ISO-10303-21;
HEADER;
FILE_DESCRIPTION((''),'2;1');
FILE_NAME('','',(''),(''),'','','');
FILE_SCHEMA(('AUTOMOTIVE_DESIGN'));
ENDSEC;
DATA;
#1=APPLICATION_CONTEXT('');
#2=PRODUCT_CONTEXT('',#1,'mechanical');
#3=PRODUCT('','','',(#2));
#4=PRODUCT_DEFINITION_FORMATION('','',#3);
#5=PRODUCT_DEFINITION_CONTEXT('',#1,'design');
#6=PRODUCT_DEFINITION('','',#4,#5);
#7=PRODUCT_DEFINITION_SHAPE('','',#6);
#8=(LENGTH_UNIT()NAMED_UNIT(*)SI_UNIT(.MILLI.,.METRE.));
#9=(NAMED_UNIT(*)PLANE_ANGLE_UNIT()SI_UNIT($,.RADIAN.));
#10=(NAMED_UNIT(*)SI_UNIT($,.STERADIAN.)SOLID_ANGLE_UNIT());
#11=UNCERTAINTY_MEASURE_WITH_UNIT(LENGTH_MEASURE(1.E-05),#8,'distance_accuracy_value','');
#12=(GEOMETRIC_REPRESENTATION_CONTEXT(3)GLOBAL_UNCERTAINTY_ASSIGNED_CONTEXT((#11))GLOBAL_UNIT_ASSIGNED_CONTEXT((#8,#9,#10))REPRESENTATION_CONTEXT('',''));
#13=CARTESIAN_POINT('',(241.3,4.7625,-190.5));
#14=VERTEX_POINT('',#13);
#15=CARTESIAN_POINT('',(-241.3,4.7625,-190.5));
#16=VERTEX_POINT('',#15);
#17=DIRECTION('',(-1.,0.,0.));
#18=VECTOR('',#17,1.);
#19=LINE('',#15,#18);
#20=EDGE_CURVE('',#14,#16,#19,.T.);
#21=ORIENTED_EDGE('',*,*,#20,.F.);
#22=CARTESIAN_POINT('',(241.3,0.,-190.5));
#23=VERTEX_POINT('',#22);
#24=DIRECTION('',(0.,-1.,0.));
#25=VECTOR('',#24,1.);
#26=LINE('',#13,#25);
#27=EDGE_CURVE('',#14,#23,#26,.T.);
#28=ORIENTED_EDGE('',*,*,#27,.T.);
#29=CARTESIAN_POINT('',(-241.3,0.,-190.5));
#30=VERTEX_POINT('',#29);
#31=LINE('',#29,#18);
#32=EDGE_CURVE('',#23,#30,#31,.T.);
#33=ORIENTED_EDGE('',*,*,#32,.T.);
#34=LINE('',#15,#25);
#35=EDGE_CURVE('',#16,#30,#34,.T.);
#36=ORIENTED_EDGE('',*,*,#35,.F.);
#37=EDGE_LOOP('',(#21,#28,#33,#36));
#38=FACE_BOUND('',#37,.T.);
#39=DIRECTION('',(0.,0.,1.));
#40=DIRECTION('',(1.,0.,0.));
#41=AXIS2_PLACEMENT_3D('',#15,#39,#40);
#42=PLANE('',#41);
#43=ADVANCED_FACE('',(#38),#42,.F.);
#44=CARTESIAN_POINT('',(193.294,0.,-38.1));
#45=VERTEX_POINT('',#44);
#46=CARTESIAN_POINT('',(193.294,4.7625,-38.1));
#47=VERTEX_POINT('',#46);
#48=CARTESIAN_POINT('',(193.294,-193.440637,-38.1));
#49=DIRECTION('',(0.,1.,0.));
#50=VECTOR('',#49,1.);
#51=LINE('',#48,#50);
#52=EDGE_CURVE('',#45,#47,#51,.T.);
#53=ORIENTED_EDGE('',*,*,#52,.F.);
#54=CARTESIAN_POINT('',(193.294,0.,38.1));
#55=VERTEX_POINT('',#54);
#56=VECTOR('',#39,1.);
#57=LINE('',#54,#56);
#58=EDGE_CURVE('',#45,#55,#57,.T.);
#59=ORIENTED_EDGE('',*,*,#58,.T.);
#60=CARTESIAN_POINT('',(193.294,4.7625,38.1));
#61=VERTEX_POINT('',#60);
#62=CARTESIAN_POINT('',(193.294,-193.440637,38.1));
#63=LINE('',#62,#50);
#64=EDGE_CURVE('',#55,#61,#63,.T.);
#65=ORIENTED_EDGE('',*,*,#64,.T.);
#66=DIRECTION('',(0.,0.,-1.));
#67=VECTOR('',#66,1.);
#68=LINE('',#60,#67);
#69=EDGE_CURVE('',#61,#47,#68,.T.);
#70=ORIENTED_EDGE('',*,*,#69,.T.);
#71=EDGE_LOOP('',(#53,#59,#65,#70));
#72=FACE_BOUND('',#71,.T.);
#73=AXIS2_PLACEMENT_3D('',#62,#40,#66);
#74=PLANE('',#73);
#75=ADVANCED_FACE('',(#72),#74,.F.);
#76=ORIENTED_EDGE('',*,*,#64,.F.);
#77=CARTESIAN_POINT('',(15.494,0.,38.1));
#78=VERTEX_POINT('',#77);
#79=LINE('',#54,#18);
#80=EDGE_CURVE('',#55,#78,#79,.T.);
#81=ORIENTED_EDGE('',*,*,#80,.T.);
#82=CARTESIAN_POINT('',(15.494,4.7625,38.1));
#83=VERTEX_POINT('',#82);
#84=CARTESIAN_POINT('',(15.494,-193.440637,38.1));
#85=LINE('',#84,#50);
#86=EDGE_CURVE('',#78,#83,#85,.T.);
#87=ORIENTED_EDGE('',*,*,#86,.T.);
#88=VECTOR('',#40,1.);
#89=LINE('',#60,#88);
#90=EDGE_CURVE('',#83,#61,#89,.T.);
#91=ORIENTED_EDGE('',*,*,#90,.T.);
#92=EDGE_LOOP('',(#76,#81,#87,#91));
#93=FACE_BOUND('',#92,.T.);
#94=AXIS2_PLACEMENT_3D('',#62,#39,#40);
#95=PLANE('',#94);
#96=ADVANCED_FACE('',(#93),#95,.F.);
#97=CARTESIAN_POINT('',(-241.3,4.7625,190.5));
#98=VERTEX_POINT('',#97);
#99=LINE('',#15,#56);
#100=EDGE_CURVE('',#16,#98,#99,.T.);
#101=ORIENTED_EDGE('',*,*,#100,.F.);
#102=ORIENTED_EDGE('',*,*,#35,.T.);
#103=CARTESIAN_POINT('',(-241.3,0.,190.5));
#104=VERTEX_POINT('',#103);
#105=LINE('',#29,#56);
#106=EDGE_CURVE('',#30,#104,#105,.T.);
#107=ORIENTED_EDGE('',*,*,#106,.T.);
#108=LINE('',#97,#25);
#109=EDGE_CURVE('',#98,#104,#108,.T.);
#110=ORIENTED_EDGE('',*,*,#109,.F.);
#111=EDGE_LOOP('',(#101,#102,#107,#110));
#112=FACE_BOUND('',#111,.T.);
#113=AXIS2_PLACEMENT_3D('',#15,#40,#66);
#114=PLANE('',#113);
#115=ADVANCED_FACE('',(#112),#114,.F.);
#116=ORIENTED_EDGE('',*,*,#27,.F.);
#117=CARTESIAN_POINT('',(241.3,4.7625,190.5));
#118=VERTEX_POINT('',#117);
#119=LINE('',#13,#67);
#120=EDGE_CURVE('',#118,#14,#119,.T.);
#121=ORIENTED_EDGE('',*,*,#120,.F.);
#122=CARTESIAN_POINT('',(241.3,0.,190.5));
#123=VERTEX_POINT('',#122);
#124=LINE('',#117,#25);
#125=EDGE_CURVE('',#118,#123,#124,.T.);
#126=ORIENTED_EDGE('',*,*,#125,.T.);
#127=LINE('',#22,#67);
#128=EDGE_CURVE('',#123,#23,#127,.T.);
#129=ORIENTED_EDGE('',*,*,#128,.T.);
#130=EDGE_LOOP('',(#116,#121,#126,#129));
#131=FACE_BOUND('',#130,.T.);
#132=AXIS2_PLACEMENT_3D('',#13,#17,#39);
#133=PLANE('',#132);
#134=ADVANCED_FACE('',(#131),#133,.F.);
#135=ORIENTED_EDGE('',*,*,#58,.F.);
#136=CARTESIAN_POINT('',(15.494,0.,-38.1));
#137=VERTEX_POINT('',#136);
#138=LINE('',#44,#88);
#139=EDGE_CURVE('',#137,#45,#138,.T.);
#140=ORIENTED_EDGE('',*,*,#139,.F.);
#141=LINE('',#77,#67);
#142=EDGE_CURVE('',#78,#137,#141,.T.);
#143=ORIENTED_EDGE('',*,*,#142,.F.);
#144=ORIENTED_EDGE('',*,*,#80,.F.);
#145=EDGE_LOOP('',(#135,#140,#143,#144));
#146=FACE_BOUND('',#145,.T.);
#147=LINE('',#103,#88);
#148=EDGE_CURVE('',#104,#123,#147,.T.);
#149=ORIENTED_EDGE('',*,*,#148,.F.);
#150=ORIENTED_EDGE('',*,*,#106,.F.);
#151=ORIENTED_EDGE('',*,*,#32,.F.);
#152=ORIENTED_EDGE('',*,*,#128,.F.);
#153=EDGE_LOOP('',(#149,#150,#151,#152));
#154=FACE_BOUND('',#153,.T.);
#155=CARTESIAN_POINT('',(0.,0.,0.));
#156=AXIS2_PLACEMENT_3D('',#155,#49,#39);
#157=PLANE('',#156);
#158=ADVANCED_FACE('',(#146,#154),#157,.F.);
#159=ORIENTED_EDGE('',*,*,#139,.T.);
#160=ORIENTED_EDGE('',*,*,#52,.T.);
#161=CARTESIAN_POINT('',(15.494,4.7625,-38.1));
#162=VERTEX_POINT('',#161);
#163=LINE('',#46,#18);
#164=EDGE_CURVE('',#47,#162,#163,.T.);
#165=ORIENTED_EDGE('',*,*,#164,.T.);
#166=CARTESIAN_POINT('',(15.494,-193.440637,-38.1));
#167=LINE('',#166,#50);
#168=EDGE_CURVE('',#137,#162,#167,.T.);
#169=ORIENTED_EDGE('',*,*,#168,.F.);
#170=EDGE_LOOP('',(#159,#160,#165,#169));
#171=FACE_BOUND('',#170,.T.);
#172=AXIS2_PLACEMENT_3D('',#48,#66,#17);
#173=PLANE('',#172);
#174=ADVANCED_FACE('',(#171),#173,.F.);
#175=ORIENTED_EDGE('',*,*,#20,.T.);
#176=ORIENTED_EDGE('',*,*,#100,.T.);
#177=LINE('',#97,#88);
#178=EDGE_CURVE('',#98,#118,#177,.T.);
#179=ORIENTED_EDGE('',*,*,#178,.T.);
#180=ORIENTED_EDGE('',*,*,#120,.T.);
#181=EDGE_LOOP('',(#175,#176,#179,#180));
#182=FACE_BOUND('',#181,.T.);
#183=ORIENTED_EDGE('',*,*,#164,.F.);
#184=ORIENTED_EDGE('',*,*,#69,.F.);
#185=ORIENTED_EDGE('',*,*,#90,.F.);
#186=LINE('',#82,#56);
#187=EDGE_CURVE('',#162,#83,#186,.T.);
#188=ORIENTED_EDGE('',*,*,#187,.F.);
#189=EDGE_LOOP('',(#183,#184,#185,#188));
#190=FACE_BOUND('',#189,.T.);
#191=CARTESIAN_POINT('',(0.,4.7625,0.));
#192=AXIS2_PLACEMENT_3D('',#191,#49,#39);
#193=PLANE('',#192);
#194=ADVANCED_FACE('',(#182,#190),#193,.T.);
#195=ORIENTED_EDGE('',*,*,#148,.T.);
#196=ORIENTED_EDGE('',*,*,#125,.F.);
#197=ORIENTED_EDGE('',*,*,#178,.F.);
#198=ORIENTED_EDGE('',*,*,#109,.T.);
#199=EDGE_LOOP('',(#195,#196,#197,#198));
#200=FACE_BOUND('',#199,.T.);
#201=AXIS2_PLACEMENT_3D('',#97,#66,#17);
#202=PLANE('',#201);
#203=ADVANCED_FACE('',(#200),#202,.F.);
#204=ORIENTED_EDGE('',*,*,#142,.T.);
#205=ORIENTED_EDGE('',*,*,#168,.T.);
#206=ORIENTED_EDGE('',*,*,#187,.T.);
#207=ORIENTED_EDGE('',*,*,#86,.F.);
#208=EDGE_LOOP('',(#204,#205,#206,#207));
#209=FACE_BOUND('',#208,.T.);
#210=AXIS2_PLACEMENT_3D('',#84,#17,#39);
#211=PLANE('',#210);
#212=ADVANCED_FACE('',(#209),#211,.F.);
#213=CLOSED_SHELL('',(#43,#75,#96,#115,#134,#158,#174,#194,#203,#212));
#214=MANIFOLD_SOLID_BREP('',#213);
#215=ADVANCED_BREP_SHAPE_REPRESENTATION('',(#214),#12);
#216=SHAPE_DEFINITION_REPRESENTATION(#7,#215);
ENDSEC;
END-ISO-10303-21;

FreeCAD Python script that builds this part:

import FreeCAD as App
import Part
import Sketcher
from FreeCAD import Vector
Q = App.Units.Quantity


def add_polygon(sketch, points):
    """Adds a closed chain of lines whose ends are joined by coincident constraints."""
    first, n = sketch.GeometryCount, len(points)
    for a, b in zip(points, points[1:] + points[:1]):
        sketch.addGeometry(Part.LineSegment(App.Vector(*a, 0), App.Vector(*b, 0)), False)
    for i in range(n):
        sketch.addConstraint(Sketcher.Constraint("Coincident", first + i, 2, first + (i + 1) % n, 1))

doc = App.newDocument("Part")
body = doc.addObject("PartDesign::Body", "Body")

# Sketch on XZ plane
sketch1 = body.newObject("Sketcher::SketchObject", "Sketch")
sketch1.AttachmentSupport = (doc.getObject("XZ_Plane"), [""])
sketch1.MapMode = "FlatFace"
add_polygon(sketch1, [(-241, -190), (-241, 190), (241, 190), (241, -190)])  # lines 0-3
sketch1.addConstraint(Sketcher.Constraint("Vertical", 0))
sketch1.addConstraint(Sketcher.Constraint("Horizontal", 1))
sketch1.addConstraint(Sketcher.Constraint("Vertical", 2))
sketch1.addConstraint(Sketcher.Constraint("Horizontal", 3))
sketch1.addConstraint(Sketcher.Constraint("Symmetric", 0, 2, 2, 2, -1, 1))
sketch1.addConstraint(Sketcher.Constraint("DistanceX", 1, 1, 1, 2, Q("19 in")))
sketch1.addConstraint(Sketcher.Constraint("DistanceY", 0, 1, 0, 2, Q("15 in")))
pad1 = body.newObject("PartDesign::Pad", "Pad")
pad1.Profile = sketch1
pad1.Length = Q("0.1875 in")
pad1.Reversed = True

# Sketch on XZ plane
sketch2 = body.newObject("Sketcher::SketchObject", "Sketch001")
sketch2.AttachmentSupport = (doc.getObject("XZ_Plane"), [""])
sketch2.MapMode = "FlatFace"
sketch2.AttachmentOffset = App.Placement(Vector(0, 0, -0.1875 * 25.4), App.Rotation())
add_polygon(sketch2, [(15, -38), (15, 38), (193, 38), (193, -38)])  # lines 0-3
sketch2.addConstraint(Sketcher.Constraint("Vertical", 0))
sketch2.addConstraint(Sketcher.Constraint("Horizontal", 1))
sketch2.addConstraint(Sketcher.Constraint("Vertical", 2))
sketch2.addConstraint(Sketcher.Constraint("Horizontal", 3))
sketch2.addConstraint(Sketcher.Constraint("DistanceX", 1, 1, 1, 2, Q("7 in")))
sketch2.addConstraint(Sketcher.Constraint("DistanceY", 0, 1, 0, 2, Q("3 in")))
sketch2.addConstraint(Sketcher.Constraint("DistanceY", -1, 1, 0, 2, Q("1.5 in")))
sketch2.addConstraint(Sketcher.Constraint("DistanceX", -1, 1, 0, 2, Q("0.61 in")))
pocket1 = body.newObject("PartDesign::Pocket", "Pocket")
pocket1.Profile = sketch2
pocket1.Length = Q("0.1875 in")
pocket1.Reversed = True

doc.recompute()
